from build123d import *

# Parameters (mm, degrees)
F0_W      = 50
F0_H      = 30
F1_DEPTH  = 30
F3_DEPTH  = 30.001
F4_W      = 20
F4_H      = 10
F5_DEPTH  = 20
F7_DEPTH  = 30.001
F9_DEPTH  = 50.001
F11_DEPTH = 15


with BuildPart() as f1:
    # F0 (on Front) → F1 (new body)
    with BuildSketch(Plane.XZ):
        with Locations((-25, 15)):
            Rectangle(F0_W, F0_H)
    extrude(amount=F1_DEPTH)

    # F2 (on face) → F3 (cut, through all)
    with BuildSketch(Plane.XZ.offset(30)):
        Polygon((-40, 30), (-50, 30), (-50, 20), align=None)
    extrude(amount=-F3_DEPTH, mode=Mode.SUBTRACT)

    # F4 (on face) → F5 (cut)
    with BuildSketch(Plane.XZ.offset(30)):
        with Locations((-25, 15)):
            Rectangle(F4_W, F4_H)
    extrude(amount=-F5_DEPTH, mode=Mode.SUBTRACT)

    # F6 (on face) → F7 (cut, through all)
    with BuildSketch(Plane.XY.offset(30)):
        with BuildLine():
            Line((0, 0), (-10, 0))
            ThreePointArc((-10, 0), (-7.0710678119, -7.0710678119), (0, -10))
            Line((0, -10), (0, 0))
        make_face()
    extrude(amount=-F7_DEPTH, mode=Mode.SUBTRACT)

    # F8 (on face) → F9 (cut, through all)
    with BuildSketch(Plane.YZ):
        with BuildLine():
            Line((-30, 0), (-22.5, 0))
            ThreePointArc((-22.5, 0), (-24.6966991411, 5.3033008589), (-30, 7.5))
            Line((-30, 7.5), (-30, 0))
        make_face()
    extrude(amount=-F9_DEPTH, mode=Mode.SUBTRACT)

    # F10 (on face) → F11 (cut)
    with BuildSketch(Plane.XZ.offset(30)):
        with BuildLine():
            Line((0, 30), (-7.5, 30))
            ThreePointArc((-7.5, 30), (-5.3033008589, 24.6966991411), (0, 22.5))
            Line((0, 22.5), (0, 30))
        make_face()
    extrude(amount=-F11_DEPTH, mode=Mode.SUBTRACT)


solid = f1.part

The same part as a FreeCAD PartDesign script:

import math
import FreeCAD as App
import Part
import Sketcher

V = App.Vector
Q = App.Units.Quantity


def add_polygon(sketch, points):
    """Adds a closed chain of lines whose ends are joined by coincident constraints."""
    first, n = sketch.GeometryCount, len(points)
    for a, b in zip(points, points[1:] + points[:1]):
        sketch.addGeometry(Part.LineSegment(App.Vector(*a, 0), App.Vector(*b, 0)), False)
    for i in range(n):
        sketch.addConstraint(Sketcher.Constraint("Coincident", first + i, 2, first + (i + 1) % n, 1))

doc = App.newDocument("Part")
params = doc.addObject("Spreadsheet::Sheet", "Params")
for row, (alias, value) in enumerate([
    ("sketch1_width", "50 mm"),
    ("sketch1_height", "30 mm"),
    ("pad1_length", "30 mm"),
    ("sketch2_width", "10 mm"),
    ("sketch3_width", "20 mm"),
    ("sketch3_height", "10 mm"),
    ("pocket2_length", "20 mm"),
    ("sketch4_radius", "10 mm"),
    ("sketch5_radius", "7.5 mm"),
    ("sketch6_radius", "7.5 mm"),
    ("pocket5_length", "15 mm"),
], start=1):
    params.set(f"A{row}", alias)
    params.set(f"B{row}", "=" + value)
    params.setAlias(f"B{row}", alias)

body = doc.addObject("PartDesign::Body", "Body")

# Sketch on XZ plane
sketch1 = body.newObject("Sketcher::SketchObject", "Sketch")
sketch1.AttachmentSupport = (doc.getObject("XZ_Plane"), [""])
sketch1.MapMode = "FlatFace"
add_polygon(sketch1, [(-50, 30), (-50, 0), (0, 0), (0, 30)])  # lines 0-3
sketch1.addConstraint([
    Sketcher.Constraint("Vertical", 0),
    Sketcher.Constraint("Horizontal", 1),
    Sketcher.Constraint("Vertical", 2),
    Sketcher.Constraint("Horizontal", 3),
    Sketcher.Constraint("Coincident", 1, 2, -1, 1),
    Sketcher.Constraint("DistanceX", 1, 1, 1, 2, Q("50 mm")),
    Sketcher.Constraint("DistanceY", 0, 2, 0, 1, Q("30 mm")),
])
sketch1.setExpression("Constraints[9]", "Params.sketch1_width")
sketch1.setExpression("Constraints[10]", "Params.sketch1_height")
pad1 = body.newObject("PartDesign::Pad", "Pad")
pad1.Profile = sketch1
pad1.setExpression("Length", "Params.pad1_length")

# Sketch on XZ plane
sketch2 = body.newObject("Sketcher::SketchObject", "Sketch001")
sketch2.AttachmentSupport = (doc.getObject("XZ_Plane"), [""])
sketch2.MapMode = "FlatFace"
sketch2.AttachmentOffset = App.Placement(V(0, 0, 30), App.Rotation())
add_polygon(sketch2, [(-40, 30), (-50, 30), (-50, 20)])  # lines 0-2
sketch2.addConstraint([
    Sketcher.Constraint("Horizontal", 0),
    Sketcher.Constraint("Vertical", 1),
    Sketcher.Constraint("Equal", 0, 1),
    Sketcher.Constraint("DistanceX", 0, 2, 0, 1, Q("10 mm")),
    Sketcher.Constraint("DistanceX", 0, 2, -1, 1, Q("50 mm")),
    Sketcher.Constraint("DistanceY", -1, 1, 0, 2, Q("30 mm")),
])
sketch2.setExpression("Constraints[6]", "Params.sketch2_width")
pocket1 = body.newObject("PartDesign::Pocket", "Pocket")
pocket1.Profile = sketch2
pocket1.Type = "ThroughAll"

# Sketch on XZ plane
sketch3 = body.newObject("Sketcher::SketchObject", "Sketch002")
sketch3.AttachmentSupport = (doc.getObject("XZ_Plane"), [""])
sketch3.MapMode = "FlatFace"
sketch3.AttachmentOffset = App.Placement(V(0, 0, 30), App.Rotation())
add_polygon(sketch3, [(-35, 20), (-35, 10), (-15, 10), (-15, 20)])  # lines 0-3
sketch3.addConstraint([
    Sketcher.Constraint("Vertical", 0),
    Sketcher.Constraint("Horizontal", 1),
    Sketcher.Constraint("Vertical", 2),
    Sketcher.Constraint("Horizontal", 3),
    Sketcher.Constraint("DistanceX", 1, 1, 1, 2, Q("20 mm")),
    Sketcher.Constraint("DistanceY", 0, 2, 0, 1, Q("10 mm")),
    Sketcher.Constraint("DistanceX", 0, 2, -1, 1, Q("35 mm")),
    Sketcher.Constraint("DistanceY", -1, 1, 0, 2, Q("10 mm")),
])
sketch3.setExpression("Constraints[8]", "Params.sketch3_width")
sketch3.setExpression("Constraints[9]", "Params.sketch3_height")
pocket2 = body.newObject("PartDesign::Pocket", "Pocket001")
pocket2.Profile = sketch3
pocket2.setExpression("Length", "Params.pocket2_length")

# Sketch on XY plane
sketch4 = body.newObject("Sketcher::SketchObject", "Sketch003")
sketch4.AttachmentSupport = (doc.getObject("XY_Plane"), [""])
sketch4.MapMode = "FlatFace"
sketch4.AttachmentOffset = App.Placement(V(0, 0, 30), App.Rotation())
sketch4.addGeometry([
    Part.LineSegment(V(0, 0, 0), V(-10, 0, 0)),
    Part.ArcOfCircle(Part.Circle(V(0, 0, 0), V(0, 0, 1), 10), math.radians(180), math.radians(270)),
    Part.LineSegment(V(0, -10, 0), V(0, 0, 0)),
], False)
sketch4.addConstraint([
    Sketcher.Constraint("Coincident", 0, 2, 1, 1),
    Sketcher.Constraint("Coincident", 1, 2, 2, 1),
    Sketcher.Constraint("Coincident", 2, 2, 0, 1),
    Sketcher.Constraint("Horizontal", 0),
    Sketcher.Constraint("Vertical", 2),
    Sketcher.Constraint("Coincident", 1, 3, -1, 1),
    Sketcher.Constraint("Coincident", 2, 2, -1, 1),
    Sketcher.Constraint("Radius", 1, Q("10 mm")),
])
sketch4.setExpression("Constraints[7]", "Params.sketch4_radius")
pocket3 = body.newObject("PartDesign::Pocket", "Pocket002")
pocket3.Profile = sketch4
pocket3.Type = "ThroughAll"

# Sketch on YZ plane
sketch5 = body.newObject("Sketcher::SketchObject", "Sketch004")
sketch5.AttachmentSupport = (doc.getObject("YZ_Plane"), [""])
sketch5.MapMode = "FlatFace"
sketch5.addGeometry([
    Part.LineSegment(V(-30, 0, 0), V(-22, 0, 0)),
    Part.ArcOfCircle(Part.Circle(V(-30, 0, 0), V(0, 0, 1), 8), math.radians(0), math.radians(90)),
    Part.LineSegment(V(-30, 8, 0), V(-30, 0, 0)),
], False)
sketch5.addConstraint([
    Sketcher.Constraint("Coincident", 0, 2, 1, 1),
    Sketcher.Constraint("Coincident", 1, 2, 2, 1),
    Sketcher.Constraint("Coincident", 2, 2, 0, 1),
    Sketcher.Constraint("Horizontal", 0),
    Sketcher.Constraint("Vertical", 2),
    Sketcher.Constraint("Coincident", 2, 2, 1, 3),
    Sketcher.Constraint("PointOnObject", 1, 3, -1),
    Sketcher.Constraint("Radius", 1, Q("7.5 mm")),
    Sketcher.Constraint("DistanceX", 1, 3, -1, 1, Q("30 mm")),
])
sketch5.setExpression("Constraints[7]", "Params.sketch5_radius")
pocket4 = body.newObject("PartDesign::Pocket", "Pocket003")
pocket4.Profile = sketch5
pocket4.Type = "ThroughAll"

# Sketch on XZ plane
sketch6 = body.newObject("Sketcher::SketchObject", "Sketch005")
sketch6.AttachmentSupport = (doc.getObject("XZ_Plane"), [""])
sketch6.MapMode = "FlatFace"
sketch6.AttachmentOffset = App.Placement(V(0, 0, 30), App.Rotation())
sketch6.addGeometry([
    Part.LineSegment(V(0, 30, 0), V(-8, 30, 0)),
    Part.ArcOfCircle(Part.Circle(V(0, 30, 0), V(0, 0, 1), 8), math.radians(180), math.radians(270)),
    Part.LineSegment(V(0, 22, 0), V(0, 30, 0)),
], False)
sketch6.addConstraint([
    Sketcher.Constraint("Coincident", 0, 2, 1, 1),
    Sketcher.Constraint("Coincident", 1, 2, 2, 1),
    Sketcher.Constraint("Coincident", 2, 2, 0, 1),
    Sketcher.Constraint("Horizontal", 0),
    Sketcher.Constraint("Vertical", 2),
    Sketcher.Constraint("Coincident", 2, 2, 1, 3),
    Sketcher.Constraint("PointOnObject", 1, 3, -2),
    Sketcher.Constraint("Radius", 1, Q("7.5 mm")),
    Sketcher.Constraint("DistanceY", -1, 1, 1, 3, Q("30 mm")),
])
sketch6.setExpression("Constraints[7]", "Params.sketch6_radius")
pocket5 = body.newObject("PartDesign::Pocket", "Pocket004")
pocket5.Profile = sketch6
pocket5.setExpression("Length", "Params.pocket5_length")

doc.recompute()
